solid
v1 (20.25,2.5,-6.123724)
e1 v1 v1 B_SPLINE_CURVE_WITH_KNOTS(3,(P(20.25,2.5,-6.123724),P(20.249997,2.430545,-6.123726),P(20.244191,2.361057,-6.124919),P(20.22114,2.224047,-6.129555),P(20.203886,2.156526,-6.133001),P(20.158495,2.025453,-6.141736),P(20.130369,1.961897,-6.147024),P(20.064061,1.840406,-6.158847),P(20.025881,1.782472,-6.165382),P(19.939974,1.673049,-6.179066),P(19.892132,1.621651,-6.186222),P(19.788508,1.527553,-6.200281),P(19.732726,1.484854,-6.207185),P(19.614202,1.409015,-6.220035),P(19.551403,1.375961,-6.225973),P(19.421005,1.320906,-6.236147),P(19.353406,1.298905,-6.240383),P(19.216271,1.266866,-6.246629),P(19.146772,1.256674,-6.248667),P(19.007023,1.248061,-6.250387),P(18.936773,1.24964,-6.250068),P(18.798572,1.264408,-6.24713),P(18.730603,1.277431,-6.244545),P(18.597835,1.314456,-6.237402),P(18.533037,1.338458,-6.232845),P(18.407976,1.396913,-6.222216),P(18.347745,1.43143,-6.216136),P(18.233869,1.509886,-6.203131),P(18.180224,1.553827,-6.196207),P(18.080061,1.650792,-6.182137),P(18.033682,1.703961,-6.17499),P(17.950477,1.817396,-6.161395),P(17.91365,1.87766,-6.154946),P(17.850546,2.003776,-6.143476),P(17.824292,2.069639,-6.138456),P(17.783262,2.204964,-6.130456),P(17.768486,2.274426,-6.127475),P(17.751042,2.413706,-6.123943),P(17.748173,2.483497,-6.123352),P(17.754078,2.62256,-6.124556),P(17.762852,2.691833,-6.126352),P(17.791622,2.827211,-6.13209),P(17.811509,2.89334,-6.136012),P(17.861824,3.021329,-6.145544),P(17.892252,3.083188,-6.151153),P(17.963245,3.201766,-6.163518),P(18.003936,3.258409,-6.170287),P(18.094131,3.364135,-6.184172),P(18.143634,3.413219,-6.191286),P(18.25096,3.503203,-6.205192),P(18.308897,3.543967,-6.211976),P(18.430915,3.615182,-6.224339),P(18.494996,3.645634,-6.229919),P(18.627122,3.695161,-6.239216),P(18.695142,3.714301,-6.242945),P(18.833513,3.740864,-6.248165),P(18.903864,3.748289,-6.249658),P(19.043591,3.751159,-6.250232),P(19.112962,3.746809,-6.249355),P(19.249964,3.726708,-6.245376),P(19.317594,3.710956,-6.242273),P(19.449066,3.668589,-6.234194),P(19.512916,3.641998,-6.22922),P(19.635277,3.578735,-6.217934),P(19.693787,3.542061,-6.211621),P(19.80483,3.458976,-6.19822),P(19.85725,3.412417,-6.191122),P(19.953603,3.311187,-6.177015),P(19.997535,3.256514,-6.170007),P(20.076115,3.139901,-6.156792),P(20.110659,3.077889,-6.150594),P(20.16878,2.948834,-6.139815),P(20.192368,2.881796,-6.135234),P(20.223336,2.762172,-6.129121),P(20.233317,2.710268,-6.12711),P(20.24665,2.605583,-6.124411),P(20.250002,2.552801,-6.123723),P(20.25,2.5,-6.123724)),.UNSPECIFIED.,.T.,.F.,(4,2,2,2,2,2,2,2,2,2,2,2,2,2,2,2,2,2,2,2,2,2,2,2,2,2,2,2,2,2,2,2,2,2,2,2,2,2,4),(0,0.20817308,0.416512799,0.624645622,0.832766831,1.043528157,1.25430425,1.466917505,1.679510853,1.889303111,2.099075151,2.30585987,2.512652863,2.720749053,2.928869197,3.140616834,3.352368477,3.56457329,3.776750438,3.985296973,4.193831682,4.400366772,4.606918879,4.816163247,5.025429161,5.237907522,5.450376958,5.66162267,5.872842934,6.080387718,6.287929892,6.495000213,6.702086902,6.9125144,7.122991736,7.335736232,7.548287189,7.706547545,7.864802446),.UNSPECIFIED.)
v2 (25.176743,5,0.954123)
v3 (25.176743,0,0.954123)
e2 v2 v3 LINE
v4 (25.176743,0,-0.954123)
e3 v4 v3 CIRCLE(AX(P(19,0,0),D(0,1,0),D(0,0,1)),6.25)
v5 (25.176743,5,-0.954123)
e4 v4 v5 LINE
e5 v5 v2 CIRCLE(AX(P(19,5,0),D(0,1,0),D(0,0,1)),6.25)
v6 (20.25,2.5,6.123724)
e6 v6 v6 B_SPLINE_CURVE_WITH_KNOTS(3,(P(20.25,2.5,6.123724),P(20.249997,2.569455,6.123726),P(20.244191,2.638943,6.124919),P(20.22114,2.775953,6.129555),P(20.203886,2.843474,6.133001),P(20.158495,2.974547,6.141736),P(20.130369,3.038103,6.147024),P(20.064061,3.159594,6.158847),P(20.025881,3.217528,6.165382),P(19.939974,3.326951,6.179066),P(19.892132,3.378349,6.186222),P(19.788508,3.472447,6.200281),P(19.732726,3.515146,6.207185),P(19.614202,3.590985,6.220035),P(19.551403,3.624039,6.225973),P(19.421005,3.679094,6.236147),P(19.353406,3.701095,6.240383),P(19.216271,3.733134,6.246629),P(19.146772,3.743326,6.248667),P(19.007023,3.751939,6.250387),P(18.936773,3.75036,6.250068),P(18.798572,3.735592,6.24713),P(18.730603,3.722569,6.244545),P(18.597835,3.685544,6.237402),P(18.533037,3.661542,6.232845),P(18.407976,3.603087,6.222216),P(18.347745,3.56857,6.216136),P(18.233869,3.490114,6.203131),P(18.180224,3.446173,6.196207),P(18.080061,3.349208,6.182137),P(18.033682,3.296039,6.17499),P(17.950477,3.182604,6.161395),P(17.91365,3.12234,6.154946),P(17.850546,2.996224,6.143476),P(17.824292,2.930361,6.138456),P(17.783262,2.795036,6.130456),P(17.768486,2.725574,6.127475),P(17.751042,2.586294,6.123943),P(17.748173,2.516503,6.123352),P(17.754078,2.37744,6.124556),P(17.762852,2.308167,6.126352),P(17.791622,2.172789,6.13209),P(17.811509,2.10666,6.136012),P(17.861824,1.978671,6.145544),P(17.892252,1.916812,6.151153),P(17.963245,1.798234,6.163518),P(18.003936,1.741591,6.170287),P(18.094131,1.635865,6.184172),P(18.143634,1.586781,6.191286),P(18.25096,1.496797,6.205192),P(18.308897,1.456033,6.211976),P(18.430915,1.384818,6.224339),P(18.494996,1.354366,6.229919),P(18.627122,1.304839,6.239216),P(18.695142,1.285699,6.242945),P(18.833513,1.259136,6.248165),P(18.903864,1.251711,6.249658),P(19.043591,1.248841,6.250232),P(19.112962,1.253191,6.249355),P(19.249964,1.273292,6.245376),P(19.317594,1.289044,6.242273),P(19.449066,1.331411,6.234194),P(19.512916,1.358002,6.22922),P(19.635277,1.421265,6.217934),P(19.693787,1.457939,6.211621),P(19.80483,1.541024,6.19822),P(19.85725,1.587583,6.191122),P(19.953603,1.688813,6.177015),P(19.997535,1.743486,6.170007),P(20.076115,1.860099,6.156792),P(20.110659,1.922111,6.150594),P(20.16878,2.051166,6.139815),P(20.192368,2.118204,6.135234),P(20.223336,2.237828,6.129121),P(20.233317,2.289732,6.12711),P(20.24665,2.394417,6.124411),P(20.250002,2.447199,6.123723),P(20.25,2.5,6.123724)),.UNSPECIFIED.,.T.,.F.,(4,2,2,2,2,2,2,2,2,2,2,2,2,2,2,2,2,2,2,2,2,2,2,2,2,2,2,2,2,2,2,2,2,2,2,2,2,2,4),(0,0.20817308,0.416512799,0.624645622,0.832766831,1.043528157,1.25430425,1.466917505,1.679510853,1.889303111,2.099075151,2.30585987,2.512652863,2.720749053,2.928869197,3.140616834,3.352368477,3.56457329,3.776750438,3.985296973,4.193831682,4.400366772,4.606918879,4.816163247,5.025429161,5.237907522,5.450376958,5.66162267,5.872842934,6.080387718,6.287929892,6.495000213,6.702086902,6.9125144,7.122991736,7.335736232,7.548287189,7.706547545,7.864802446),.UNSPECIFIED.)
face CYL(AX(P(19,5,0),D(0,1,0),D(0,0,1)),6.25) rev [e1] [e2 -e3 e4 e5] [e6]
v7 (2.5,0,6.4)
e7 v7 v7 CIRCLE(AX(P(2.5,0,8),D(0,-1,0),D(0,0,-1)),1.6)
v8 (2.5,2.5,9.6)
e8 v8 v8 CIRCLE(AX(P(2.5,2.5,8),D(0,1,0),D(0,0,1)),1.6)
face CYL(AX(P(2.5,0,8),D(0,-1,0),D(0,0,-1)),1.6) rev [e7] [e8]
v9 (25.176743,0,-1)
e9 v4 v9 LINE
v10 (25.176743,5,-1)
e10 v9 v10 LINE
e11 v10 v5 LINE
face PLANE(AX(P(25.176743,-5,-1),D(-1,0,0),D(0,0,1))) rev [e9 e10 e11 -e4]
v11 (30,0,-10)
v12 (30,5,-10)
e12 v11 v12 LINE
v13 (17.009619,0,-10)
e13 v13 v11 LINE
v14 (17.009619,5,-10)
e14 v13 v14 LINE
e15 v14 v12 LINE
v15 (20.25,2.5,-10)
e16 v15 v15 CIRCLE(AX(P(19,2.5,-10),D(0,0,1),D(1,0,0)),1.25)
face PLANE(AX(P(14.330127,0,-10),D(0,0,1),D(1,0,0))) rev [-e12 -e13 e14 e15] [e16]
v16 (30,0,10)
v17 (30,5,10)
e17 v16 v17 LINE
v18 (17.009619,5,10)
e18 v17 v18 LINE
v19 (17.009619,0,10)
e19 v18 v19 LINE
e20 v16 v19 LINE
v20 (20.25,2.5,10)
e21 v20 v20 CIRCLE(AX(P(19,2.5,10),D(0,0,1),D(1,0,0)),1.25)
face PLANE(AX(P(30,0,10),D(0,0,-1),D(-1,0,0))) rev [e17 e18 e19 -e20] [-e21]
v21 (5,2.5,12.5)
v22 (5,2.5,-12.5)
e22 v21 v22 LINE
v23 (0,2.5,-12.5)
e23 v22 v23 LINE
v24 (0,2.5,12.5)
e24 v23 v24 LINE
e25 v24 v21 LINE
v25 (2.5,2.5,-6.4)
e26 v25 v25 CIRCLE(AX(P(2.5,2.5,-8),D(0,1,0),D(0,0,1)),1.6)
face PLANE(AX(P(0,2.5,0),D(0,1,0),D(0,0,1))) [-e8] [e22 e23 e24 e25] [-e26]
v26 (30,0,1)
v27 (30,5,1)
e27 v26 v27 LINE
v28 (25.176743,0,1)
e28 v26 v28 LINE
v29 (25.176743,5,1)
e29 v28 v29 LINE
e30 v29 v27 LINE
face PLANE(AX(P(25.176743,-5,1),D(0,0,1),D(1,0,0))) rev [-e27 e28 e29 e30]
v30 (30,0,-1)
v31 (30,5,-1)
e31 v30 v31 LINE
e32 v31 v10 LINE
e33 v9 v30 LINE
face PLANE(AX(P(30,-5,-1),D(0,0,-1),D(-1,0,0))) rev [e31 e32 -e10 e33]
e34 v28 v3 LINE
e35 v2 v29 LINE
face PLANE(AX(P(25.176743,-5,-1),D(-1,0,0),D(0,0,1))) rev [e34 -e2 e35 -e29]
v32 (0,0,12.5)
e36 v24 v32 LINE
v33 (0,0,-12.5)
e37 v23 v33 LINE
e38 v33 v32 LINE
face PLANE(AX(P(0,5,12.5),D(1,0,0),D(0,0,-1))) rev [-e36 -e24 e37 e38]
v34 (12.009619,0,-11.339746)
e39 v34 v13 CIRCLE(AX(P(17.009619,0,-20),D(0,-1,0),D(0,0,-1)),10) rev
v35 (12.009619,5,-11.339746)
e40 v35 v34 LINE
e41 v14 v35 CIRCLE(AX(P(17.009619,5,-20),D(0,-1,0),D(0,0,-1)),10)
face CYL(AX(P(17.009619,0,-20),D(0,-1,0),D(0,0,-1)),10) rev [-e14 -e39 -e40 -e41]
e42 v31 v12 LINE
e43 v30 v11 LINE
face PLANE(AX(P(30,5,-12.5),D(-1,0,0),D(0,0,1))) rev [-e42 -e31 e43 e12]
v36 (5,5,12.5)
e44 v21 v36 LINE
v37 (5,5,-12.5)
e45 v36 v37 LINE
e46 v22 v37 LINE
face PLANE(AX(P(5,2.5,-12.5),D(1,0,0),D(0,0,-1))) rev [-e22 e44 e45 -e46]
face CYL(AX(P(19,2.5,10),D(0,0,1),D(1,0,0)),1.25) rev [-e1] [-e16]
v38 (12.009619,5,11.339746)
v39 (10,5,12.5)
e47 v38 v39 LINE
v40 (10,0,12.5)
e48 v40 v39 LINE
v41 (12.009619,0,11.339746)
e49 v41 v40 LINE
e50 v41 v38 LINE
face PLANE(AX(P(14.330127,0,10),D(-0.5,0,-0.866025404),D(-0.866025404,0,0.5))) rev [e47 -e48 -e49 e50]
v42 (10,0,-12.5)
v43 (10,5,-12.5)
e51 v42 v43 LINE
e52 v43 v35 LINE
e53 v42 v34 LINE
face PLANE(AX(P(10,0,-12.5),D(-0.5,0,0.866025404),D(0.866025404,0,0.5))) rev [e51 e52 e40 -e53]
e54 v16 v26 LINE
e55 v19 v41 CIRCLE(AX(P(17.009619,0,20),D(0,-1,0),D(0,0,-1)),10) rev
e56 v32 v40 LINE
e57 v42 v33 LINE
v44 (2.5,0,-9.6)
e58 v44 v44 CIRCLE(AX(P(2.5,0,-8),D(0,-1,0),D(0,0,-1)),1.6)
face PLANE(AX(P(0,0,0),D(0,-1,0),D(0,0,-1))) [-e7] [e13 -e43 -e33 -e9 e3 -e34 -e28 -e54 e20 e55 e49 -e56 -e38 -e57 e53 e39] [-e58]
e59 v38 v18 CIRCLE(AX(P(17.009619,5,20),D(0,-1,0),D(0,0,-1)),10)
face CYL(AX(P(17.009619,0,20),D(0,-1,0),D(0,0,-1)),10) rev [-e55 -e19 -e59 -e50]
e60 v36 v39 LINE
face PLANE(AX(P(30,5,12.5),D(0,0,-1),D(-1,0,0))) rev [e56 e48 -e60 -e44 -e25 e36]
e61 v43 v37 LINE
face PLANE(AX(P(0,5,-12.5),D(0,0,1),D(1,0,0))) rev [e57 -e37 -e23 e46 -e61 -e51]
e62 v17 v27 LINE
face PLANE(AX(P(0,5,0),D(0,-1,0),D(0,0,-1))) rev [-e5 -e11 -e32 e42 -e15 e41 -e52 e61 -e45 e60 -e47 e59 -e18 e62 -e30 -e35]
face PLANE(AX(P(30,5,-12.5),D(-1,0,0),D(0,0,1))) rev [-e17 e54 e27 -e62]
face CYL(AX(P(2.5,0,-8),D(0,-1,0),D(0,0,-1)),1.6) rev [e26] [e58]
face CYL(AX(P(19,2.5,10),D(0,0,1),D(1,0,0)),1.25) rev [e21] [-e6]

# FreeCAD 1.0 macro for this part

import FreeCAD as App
import Part
import Sketcher

V = App.Vector
Q = App.Units.Quantity


def edges_at(feature, points):
    """Names of the edges that pass closest to the given points."""
    edges = feature.Shape.Edges
    near = lambda p: min(range(len(edges)), key=lambda i: edges[i].distToShape(Part.Vertex(*p))[0])
    return sorted({f"Edge{near(p) + 1}" for p in points})

doc = App.newDocument("Part")
body = doc.addObject("PartDesign::Body", "Body")

sketch1 = body.newObject("Sketcher::SketchObject", "Sketch")
sketch1.AttachmentSupport = (doc.getObject("XZ_Plane"), [""])
sketch1.MapMode = "FlatFace"
sketch1.addGeometry(Part.LineSegment(V(0, -12.5, 0), V(0, 12.5, 0)), False)
sketch1.addGeometry(Part.LineSegment(V(0, 12.5, 0), V(30, 12.5, 0)), False)
sketch1.addGeometry(Part.LineSegment(V(30, 12.5, 0), V(30, -12.5, 0)), False)
sketch1.addGeometry(Part.LineSegment(V(30, -12.5, 0), V(0, -12.5, 0)), False)
sketch1.addConstraint(Sketcher.Constraint("Coincident", 0, 2, 1, 1))
sketch1.addConstraint(Sketcher.Constraint("Coincident", 1, 2, 2, 1))
sketch1.addConstraint(Sketcher.Constraint("Coincident", 2, 2, 3, 1))
sketch1.addConstraint(Sketcher.Constraint("Coincident", 3, 2, 0, 1))
sketch1.addConstraint(Sketcher.Constraint("Vertical", 0))
sketch1.addConstraint(Sketcher.Constraint("Horizontal", 1))
sketch1.addConstraint(Sketcher.Constraint("Vertical", 2))
sketch1.addConstraint(Sketcher.Constraint("Horizontal", 3))
sketch1.addConstraint(Sketcher.Constraint("Symmetric", 0, 2, 3, 2, -1, 1))
sketch1.addConstraint(Sketcher.Constraint("DistanceX", 1, 1, 1, 2, Q("30 mm")))
sketch1.addConstraint(Sketcher.Constraint("DistanceY", 0, 1, 0, 2, Q("25 mm")))
pad1 = body.newObject("PartDesign::Pad", "Pad")
pad1.Profile = sketch1
pad1.Length = 5
pad1.Reversed = True

sketch2 = body.newObject("Sketcher::SketchObject", "Sketch001")
sketch2.AttachmentSupport = (doc.getObject("XZ_Plane"), [""])
sketch2.MapMode = "FlatFace"
sketch2.AttachmentOffset = App.Placement(V(0, 0, -5), App.Rotation())
sketch2.addGeometry(Part.LineSegment(V(0, -12.5, 0), V(0, 12.5, 0)), False)
sketch2.addGeometry(Part.LineSegment(V(0, 12.5, 0), V(5, 12.5, 0)), False)
sketch2.addGeometry(Part.LineSegment(V(5, 12.5, 0), V(5, -12.5, 0)), False)
sketch2.addGeometry(Part.LineSegment(V(5, -12.5, 0), V(0, -12.5, 0)), False)
sketch2.addConstraint(Sketcher.Constraint("Coincident", 0, 2, 1, 1))
sketch2.addConstraint(Sketcher.Constraint("Coincident", 1, 2, 2, 1))
sketch2.addConstraint(Sketcher.Constraint("Coincident", 2, 2, 3, 1))
sketch2.addConstraint(Sketcher.Constraint("Coincident", 3, 2, 0, 1))
sketch2.addConstraint(Sketcher.Constraint("Vertical", 0))
sketch2.addConstraint(Sketcher.Constraint("Horizontal", 1))
sketch2.addConstraint(Sketcher.Constraint("Vertical", 2))
sketch2.addConstraint(Sketcher.Constraint("Horizontal", 3))
sketch2.addConstraint(Sketcher.Constraint("Symmetric", 0, 2, 3, 2, -1, 1))
sketch2.addConstraint(Sketcher.Constraint("DistanceX", 1, 1, 1, 2, Q("5 mm")))
sketch2.addConstraint(Sketcher.Constraint("DistanceY", 0, 1, 0, 2, Q("25 mm")))
pocket1 = body.newObject("PartDesign::Pocket", "Pocket")
pocket1.Profile = sketch2
pocket1.Length = 2.5
pocket1.Reversed = True

sketch3 = body.newObject("Sketcher::SketchObject", "Sketch002")
sketch3.AttachmentSupport = (doc.getObject("XZ_Plane"), [""])
sketch3.MapMode = "FlatFace"
sketch3.AttachmentOffset = App.Placement(V(0, 0, -5), App.Rotation())
sketch3.addGeometry(Part.Circle(V(19, 0, 0), V(0, 0, 1), 6.25), False)
sketch3.addConstraint(Sketcher.Constraint("PointOnObject", 0, 3, -1))
sketch3.addConstraint(Sketcher.Constraint("Diameter", 0, Q("12.5 mm")))
sketch3.addConstraint(Sketcher.Constraint("DistanceX", -1, 1, 0, 3, Q("19 mm")))
doc.recompute()
hole = body.newObject("PartDesign::Hole", "Hole")
hole.Profile = sketch3
hole.ThreadType = "None"
hole.Diameter = 12.5
hole.DepthType = "Dimension"
hole.Depth = 5
hole.DrillPoint = "Angled"
hole.DrillPointAngle = 118
hole.Reversed = True

sketch4 = body.newObject("Sketcher::SketchObject", "Sketch003")
sketch4.AttachmentSupport = (doc.getObject("XZ_Plane"), [""])
sketch4.MapMode = "FlatFace"
sketch4.addGeometry(Part.Circle(V(2.5, -8, 0), V(0, 0, 1), 1.6), False)
sketch4.addGeometry(Part.Circle(V(2.5, 8, 0), V(0, 0, 1), 1.6), False)
sketch4.addConstraint(Sketcher.Constraint("Equal", 0, 1))
sketch4.addConstraint(Sketcher.Constraint("Symmetric", 0, 3, 1, 3, -1))
sketch4.addConstraint(Sketcher.Constraint("Diameter", 0, Q("3.2 mm")))
sketch4.addConstraint(Sketcher.Constraint("DistanceY", 0, 3, -1, 1, Q("8 mm")))
sketch4.addConstraint(Sketcher.Constraint("DistanceX", -1, 1, 0, 3, Q("2.5 mm")))
doc.recompute()
hole2 = body.newObject("PartDesign::Hole", "Hole001")
hole2.Profile = sketch4
hole2.ThreadType = "None"
hole2.Diameter = 3.2
hole2.DepthType = "Dimension"
hole2.Depth = 5
hole2.DrillPoint = "Angled"
hole2.DrillPointAngle = 118

sketch5 = body.newObject("Sketcher::SketchObject", "Sketch004")
sketch5.AttachmentSupport = (doc.getObject("XZ_Plane"), [""])
sketch5.MapMode = "FlatFace"
sketch5.AttachmentOffset = App.Placement(V(0, 0, -5), App.Rotation())
sketch5.addGeometry(Part.LineSegment(V(10, -12.5, 0), V(14.330127, -10, 0)), False)
sketch5.addGeometry(Part.LineSegment(V(14.330127, -10, 0), V(30, -10, 0)), False)
sketch5.addGeometry(Part.LineSegment(V(30, -10, 0), V(30, -12.5, 0)), False)
sketch5.addGeometry(Part.LineSegment(V(30, -12.5, 0), V(10, -12.5, 0)), False)
sketch5.addGeometry(Part.LineSegment(V(30, 10, 0), V(14.330127, 10, 0)), False)
sketch5.addGeometry(Part.LineSegment(V(14.330127, 10, 0), V(10, 12.5, 0)), False)
sketch5.addGeometry(Part.LineSegment(V(10, 12.5, 0), V(30, 12.5, 0)), False)
sketch5.addGeometry(Part.LineSegment(V(30, 12.5, 0), V(30, 10, 0)), False)
sketch5.addConstraint(Sketcher.Constraint("Coincident", 0, 2, 1, 1))
sketch5.addConstraint(Sketcher.Constraint("Coincident", 1, 2, 2, 1))
sketch5.addConstraint(Sketcher.Constraint("Coincident", 2, 2, 3, 1))
sketch5.addConstraint(Sketcher.Constraint("Coincident", 3, 2, 0, 1))
sketch5.addConstraint(Sketcher.Constraint("Coincident", 4, 2, 5, 1))
sketch5.addConstraint(Sketcher.Constraint("Coincident", 5, 2, 6, 1))
sketch5.addConstraint(Sketcher.Constraint("Coincident", 6, 2, 7, 1))
sketch5.addConstraint(Sketcher.Constraint("Coincident", 7, 2, 4, 1))
sketch5.addConstraint(Sketcher.Constraint("Horizontal", 1))
sketch5.addConstraint(Sketcher.Constraint("Vertical", 2))
sketch5.addConstraint(Sketcher.Constraint("Horizontal", 3))
sketch5.addConstraint(Sketcher.Constraint("Horizontal", 4))
sketch5.addConstraint(Sketcher.Constraint("Horizontal", 6))
sketch5.addConstraint(Sketcher.Constraint("Vertical", 7))
sketch5.addConstraint(Sketcher.Constraint("Symmetric", 0, 2, 4, 2, -1))
sketch5.addConstraint(Sketcher.Constraint("Symmetric", 3, 2, 5, 2, -1))
sketch5.addConstraint(Sketcher.Constraint("Vertical", 2, 2, 6, 2))
sketch5.addConstraint(Sketcher.Constraint("DistanceX", 3, 2, 3, 1, Q("20 mm")))
sketch5.addConstraint(Sketcher.Constraint("Angle", 0, Q("30 deg")))
sketch5.addConstraint(Sketcher.Constraint("Distance", 0, Q("5 mm")))
sketch5.addConstraint(Sketcher.Constraint("DistanceY", 0, 2, -1, 1, Q("10 mm")))
sketch5.addConstraint(Sketcher.Constraint("DistanceX", -1, 1, 1, 2, Q("30 mm")))
pocket2 = body.newObject("PartDesign::Pocket", "Pocket001")
pocket2.Profile = sketch5
pocket2.Type = "ThroughAll"
pocket2.Reversed = True

sketch6 = body.newObject("Sketcher::SketchObject", "Sketch005")
sketch6.AttachmentSupport = (doc.getObject("XZ_Plane"), [""])
sketch6.MapMode = "FlatFace"
sketch6.AttachmentOffset = App.Placement(V(0, 0, -5), App.Rotation())
sketch6.addGeometry(Part.LineSegment(V(25.176743, -1, 0), V(25.176743, 1, 0)), False)
sketch6.addGeometry(Part.LineSegment(V(25.176743, 1, 0), V(30, 1, 0)), False)
sketch6.addGeometry(Part.LineSegment(V(30, 1, 0), V(30, -1, 0)), False)
sketch6.addGeometry(Part.LineSegment(V(30, -1, 0), V(25.176743, -1, 0)), False)
sketch6.addConstraint(Sketcher.Constraint("Coincident", 0, 2, 1, 1))
sketch6.addConstraint(Sketcher.Constraint("Coincident", 1, 2, 2, 1))
sketch6.addConstraint(Sketcher.Constraint("Coincident", 2, 2, 3, 1))
sketch6.addConstraint(Sketcher.Constraint("Coincident", 3, 2, 0, 1))
sketch6.addConstraint(Sketcher.Constraint("Vertical", 0))
sketch6.addConstraint(Sketcher.Constraint("Horizontal", 1))
sketch6.addConstraint(Sketcher.Constraint("Vertical", 2))
sketch6.addConstraint(Sketcher.Constraint("Horizontal", 3))
sketch6.addConstraint(Sketcher.Constraint("DistanceY", 0, 1, 0, 2, Q("2 mm")))
sketch6.addConstraint(Sketcher.Constraint("DistanceY", -1, 1, 0, 2, Q("1 mm")))
sketch6.addConstraint(Sketcher.Constraint("DistanceX", -1, 1, 1, 2, Q("30 mm")))
sketch6.addConstraint(Sketcher.Constraint("DistanceX", 1, 1, 1, 2, Q("4.823257 mm")))
pocket3 = body.newObject("PartDesign::Pocket", "Pocket002")
pocket3.Profile = sketch6
pocket3.Length = 10
pocket3.Reversed = True
doc.recompute()

fillet = body.newObject("PartDesign::Fillet", "Fillet")
fillet.Base = (pocket3, edges_at(pocket3, [(14.33, 2.5, -10), (14.33, 2.5, 10)]))
fillet.Radius = 10

sketch7 = body.newObject("Sketcher::SketchObject", "Sketch006")
sketch7.AttachmentSupport = (doc.getObject("XY_Plane"), [""])
sketch7.MapMode = "FlatFace"
sketch7.AttachmentOffset = App.Placement(V(0, 0, 10), App.Rotation())
sketch7.addGeometry(Part.Circle(V(19, 2.5, 0), V(0, 0, 1), 1.25), False)
sketch7.addConstraint(Sketcher.Constraint("Diameter", 0, Q("2.5 mm")))
sketch7.addConstraint(Sketcher.Constraint("DistanceX", -1, 1, 0, 3, Q("19 mm")))
sketch7.addConstraint(Sketcher.Constraint("DistanceY", -1, 1, 0, 3, Q("2.5 mm")))
doc.recompute()
hole3 = body.newObject("PartDesign::Hole", "Hole002")
hole3.Profile = sketch7
hole3.ThreadType = "None"
hole3.Diameter = 2.5
hole3.DepthType = "ThroughAll"

doc.recompute()
